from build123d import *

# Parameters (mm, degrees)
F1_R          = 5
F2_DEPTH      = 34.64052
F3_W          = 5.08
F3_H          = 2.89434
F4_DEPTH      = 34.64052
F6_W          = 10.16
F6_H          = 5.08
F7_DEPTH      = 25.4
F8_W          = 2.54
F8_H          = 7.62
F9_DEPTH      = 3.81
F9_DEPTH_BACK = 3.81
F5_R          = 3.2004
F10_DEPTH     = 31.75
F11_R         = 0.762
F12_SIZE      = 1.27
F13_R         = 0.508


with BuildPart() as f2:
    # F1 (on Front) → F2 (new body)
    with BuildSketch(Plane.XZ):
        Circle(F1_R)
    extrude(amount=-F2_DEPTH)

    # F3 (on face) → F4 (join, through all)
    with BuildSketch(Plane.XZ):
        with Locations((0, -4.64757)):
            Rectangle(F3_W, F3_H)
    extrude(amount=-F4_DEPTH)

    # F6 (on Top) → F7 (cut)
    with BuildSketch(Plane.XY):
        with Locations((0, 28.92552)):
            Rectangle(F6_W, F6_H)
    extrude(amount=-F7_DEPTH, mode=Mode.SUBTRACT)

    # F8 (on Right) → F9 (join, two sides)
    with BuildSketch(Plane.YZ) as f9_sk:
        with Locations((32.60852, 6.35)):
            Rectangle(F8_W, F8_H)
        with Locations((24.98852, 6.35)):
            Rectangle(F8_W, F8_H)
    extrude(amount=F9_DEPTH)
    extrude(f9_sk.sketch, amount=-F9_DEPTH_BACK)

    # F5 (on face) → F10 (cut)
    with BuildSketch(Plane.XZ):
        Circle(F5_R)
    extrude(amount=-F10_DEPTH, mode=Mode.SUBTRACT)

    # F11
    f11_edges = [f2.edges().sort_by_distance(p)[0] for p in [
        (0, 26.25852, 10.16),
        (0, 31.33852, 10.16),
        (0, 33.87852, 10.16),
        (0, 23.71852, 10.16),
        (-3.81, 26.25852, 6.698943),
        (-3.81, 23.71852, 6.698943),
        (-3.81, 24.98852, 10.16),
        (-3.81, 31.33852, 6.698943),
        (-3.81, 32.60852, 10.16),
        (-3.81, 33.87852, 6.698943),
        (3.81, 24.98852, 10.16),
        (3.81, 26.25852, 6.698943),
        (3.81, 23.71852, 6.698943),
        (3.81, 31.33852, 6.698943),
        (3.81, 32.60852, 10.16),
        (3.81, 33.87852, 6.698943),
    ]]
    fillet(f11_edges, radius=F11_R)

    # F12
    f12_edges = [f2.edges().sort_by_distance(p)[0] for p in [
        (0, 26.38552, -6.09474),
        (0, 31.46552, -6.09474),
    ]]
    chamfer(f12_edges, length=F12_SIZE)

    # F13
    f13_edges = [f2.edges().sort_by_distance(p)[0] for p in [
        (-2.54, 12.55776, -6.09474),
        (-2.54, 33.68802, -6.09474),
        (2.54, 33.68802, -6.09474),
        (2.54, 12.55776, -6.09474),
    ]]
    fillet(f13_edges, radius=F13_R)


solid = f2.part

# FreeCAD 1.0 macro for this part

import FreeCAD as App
import Part
import Sketcher

V = App.Vector
Q = App.Units.Quantity


def edges_at(feature, points):
    """Names of the edges that pass closest to the given points."""
    edges = feature.Shape.Edges
    near = lambda p: min(range(len(edges)), key=lambda i: edges[i].distToShape(Part.Vertex(*p))[0])
    return sorted({f"Edge{near(p) + 1}" for p in points})

doc = App.newDocument("Part")
body = doc.addObject("PartDesign::Body", "Body")

# Sketch on XZ plane
sketch1 = doc.addObject("Sketcher::SketchObject", "Sketch")
body.addObject(sketch1)
sketch1.AttachmentSupport = (doc.XZ_Plane, [""])
sketch1.MapMode = "FlatFace"
sketch1.addGeometry(Part.Circle(V(0, 0, 0), V(0, 0, 1), 5), False)
sketch1.addConstraint(Sketcher.Constraint("Coincident", 0, 3, -1, 1))
sketch1.addConstraint(Sketcher.Constraint("Diameter", 0, Q("10 mm")))
pad1 = doc.addObject("PartDesign::Pad", "Pad")
body.addObject(pad1)
pad1.Profile = sketch1
pad1.Length = Q("1.3638 in")
pad1.Reversed = True

# Sketch on XZ plane
sketch2 = doc.addObject("Sketcher::SketchObject", "Sketch001")
body.addObject(sketch2)
sketch2.AttachmentSupport = (doc.XZ_Plane, [""])
sketch2.MapMode = "FlatFace"
sketch2.addGeometry(Part.LineSegment(V(-2.5, -3.2, 0), V(-2.5, -6.1, 0)), False)
sketch2.addGeometry(Part.LineSegment(V(-2.5, -6.1, 0), V(2.5, -6.1, 0)), False)
sketch2.addGeometry(Part.LineSegment(V(2.5, -6.1, 0), V(2.5, -3.2, 0)), False)
sketch2.addGeometry(Part.LineSegment(V(2.5, -3.2, 0), V(-2.5, -3.2, 0)), False)
sketch2.addConstraint(Sketcher.Constraint("Coincident", 0, 2, 1, 1))
sketch2.addConstraint(Sketcher.Constraint("Coincident", 1, 2, 2, 1))
sketch2.addConstraint(Sketcher.Constraint("Coincident", 2, 2, 3, 1))
sketch2.addConstraint(Sketcher.Constraint("Coincident", 3, 2, 0, 1))
sketch2.addConstraint(Sketcher.Constraint("Vertical", 0))
sketch2.addConstraint(Sketcher.Constraint("Horizontal", 1))
sketch2.addConstraint(Sketcher.Constraint("Vertical", 2))
sketch2.addConstraint(Sketcher.Constraint("Horizontal", 3))
sketch2.addConstraint(Sketcher.Constraint("DistanceX", 1, 1, 1, 2, Q("0.2 in")))
sketch2.addConstraint(Sketcher.Constraint("DistanceX", 0, 2, -1, 1, Q("0.1 in")))
sketch2.addConstraint(Sketcher.Constraint("DistanceY", 2, 2, -1, 1, Q("0.126 in")))
sketch2.addConstraint(Sketcher.Constraint("DistanceY", 0, 2, 0, 1, Q("2.89434 mm")))
pad2 = doc.addObject("PartDesign::Pad", "Pad001")
body.addObject(pad2)
pad2.Profile = sketch2
pad2.Type = "UpToLast"
pad2.Reversed = True

# Sketch on XY plane
sketch3 = doc.addObject("Sketcher::SketchObject", "Sketch002")
body.addObject(sketch3)
sketch3.AttachmentSupport = (doc.XY_Plane, [""])
sketch3.MapMode = "FlatFace"
sketch3.addGeometry(Part.LineSegment(V(-5, 31, 0), V(-5, 26, 0)), False)
sketch3.addGeometry(Part.LineSegment(V(-5, 26, 0), V(5, 26, 0)), False)
sketch3.addGeometry(Part.LineSegment(V(5, 26, 0), V(5, 31, 0)), False)
sketch3.addGeometry(Part.LineSegment(V(5, 31, 0), V(-5, 31, 0)), False)
sketch3.addConstraint(Sketcher.Constraint("Coincident", 0, 2, 1, 1))
sketch3.addConstraint(Sketcher.Constraint("Coincident", 1, 2, 2, 1))
sketch3.addConstraint(Sketcher.Constraint("Coincident", 2, 2, 3, 1))
sketch3.addConstraint(Sketcher.Constraint("Coincident", 3, 2, 0, 1))
sketch3.addConstraint(Sketcher.Constraint("Vertical", 0))
sketch3.addConstraint(Sketcher.Constraint("Horizontal", 1))
sketch3.addConstraint(Sketcher.Constraint("Vertical", 2))
sketch3.addConstraint(Sketcher.Constraint("Horizontal", 3))
sketch3.addConstraint(Sketcher.Constraint("DistanceX", 1, 1, 1, 2, Q("0.4 in")))
sketch3.addConstraint(Sketcher.Constraint("DistanceY", 0, 2, 0, 1, Q("0.2 in")))
sketch3.addConstraint(Sketcher.Constraint("DistanceX", 0, 2, -1, 1, Q("0.2 in")))
sketch3.addConstraint(Sketcher.Constraint("DistanceY", -1, 1, 0, 2, Q("1.0388 in")))
pocket1 = doc.addObject("PartDesign::Pocket", "Pocket")
body.addObject(pocket1)
pocket1.Profile = sketch3
pocket1.Length = Q("1 in")

# Sketch on YZ plane
sketch4 = doc.addObject("Sketcher::SketchObject", "Sketch003")
body.addObject(sketch4)
sketch4.AttachmentSupport = (doc.YZ_Plane, [""])
sketch4.MapMode = "FlatFace"
sketch4.addGeometry(Part.LineSegment(V(31.3, 10.2, 0), V(31.3, 2.5, 0)), False)
sketch4.addGeometry(Part.LineSegment(V(31.3, 2.5, 0), V(33.9, 2.5, 0)), False)
sketch4.addGeometry(Part.LineSegment(V(33.9, 2.5, 0), V(33.9, 10.2, 0)), False)
sketch4.addGeometry(Part.LineSegment(V(33.9, 10.2, 0), V(31.3, 10.2, 0)), False)
sketch4.addGeometry(Part.LineSegment(V(23.7, 10.2, 0), V(23.7, 2.5, 0)), False)
sketch4.addGeometry(Part.LineSegment(V(23.7, 2.5, 0), V(26.3, 2.5, 0)), False)
sketch4.addGeometry(Part.LineSegment(V(26.3, 2.5, 0), V(26.3, 10.2, 0)), False)
sketch4.addGeometry(Part.LineSegment(V(26.3, 10.2, 0), V(23.7, 10.2, 0)), False)
sketch4.addConstraint(Sketcher.Constraint("Coincident", 0, 2, 1, 1))
sketch4.addConstraint(Sketcher.Constraint("Coincident", 1, 2, 2, 1))
sketch4.addConstraint(Sketcher.Constraint("Coincident", 2, 2, 3, 1))
sketch4.addConstraint(Sketcher.Constraint("Coincident", 3, 2, 0, 1))
sketch4.addConstraint(Sketcher.Constraint("Coincident", 4, 2, 5, 1))
sketch4.addConstraint(Sketcher.Constraint("Coincident", 5, 2, 6, 1))
sketch4.addConstraint(Sketcher.Constraint("Coincident", 6, 2, 7, 1))
sketch4.addConstraint(Sketcher.Constraint("Coincident", 7, 2, 4, 1))
sketch4.addConstraint(Sketcher.Constraint("Vertical", 0))
sketch4.addConstraint(Sketcher.Constraint("Horizontal", 1))
sketch4.addConstraint(Sketcher.Constraint("Vertical", 2))
sketch4.addConstraint(Sketcher.Constraint("Horizontal", 3))
sketch4.addConstraint(Sketcher.Constraint("Vertical", 4))
sketch4.addConstraint(Sketcher.Constraint("Horizontal", 5))
sketch4.addConstraint(Sketcher.Constraint("Vertical", 6))
sketch4.addConstraint(Sketcher.Constraint("Horizontal", 7))
sketch4.addConstraint(Sketcher.Constraint("Horizontal", 1, 2, 4, 2))
sketch4.addConstraint(Sketcher.Constraint("Horizontal", 3, 2, 6, 2))
sketch4.addConstraint(Sketcher.Constraint("Equal", 3, 5))
sketch4.addConstraint(Sketcher.Constraint("DistanceX", 1, 1, 1, 2, Q("0.1 in")))
sketch4.addConstraint(Sketcher.Constraint("DistanceY", 0, 2, 0, 1, Q("0.3 in")))
sketch4.addConstraint(Sketcher.Constraint("DistanceY", -1, 1, 0, 2, Q("0.1 in")))
sketch4.addConstraint(Sketcher.Constraint("DistanceX", 4, 2, 0, 2, Q("0.3 in")))
sketch4.addConstraint(Sketcher.Constraint("DistanceX", -1, 1, 0, 2, Q("1.2338 in")))
pad3 = doc.addObject("PartDesign::Pad", "Pad002")
body.addObject(pad3)
pad3.Profile = sketch4
pad3.Type = "TwoLengths"
pad3.Length = Q("0.15 in")
pad3.Length2 = Q("0.15 in")

# Sketch on XZ plane
sketch5 = doc.addObject("Sketcher::SketchObject", "Sketch004")
body.addObject(sketch5)
sketch5.AttachmentSupport = (doc.XZ_Plane, [""])
sketch5.MapMode = "FlatFace"
sketch5.addGeometry(Part.Circle(V(0, 0, 0), V(0, 0, 1), 3.2), False)
sketch5.addConstraint(Sketcher.Constraint("Coincident", 0, 3, -1, 1))
sketch5.addConstraint(Sketcher.Constraint("Diameter", 0, Q("0.252 in")))
pocket2 = doc.addObject("PartDesign::Pocket", "Pocket001")
body.addObject(pocket2)
pocket2.Profile = sketch5
pocket2.Length = Q("1.25 in")
doc.recompute()

fillet = doc.addObject("PartDesign::Fillet", "Fillet")
body.addObject(fillet)
fillet.Base = (pocket2, edges_at(pocket2, [
    (0, 26.259, 10.16),
    (0, 31.339, 10.16),
    (0, 33.879, 10.16),
    (0, 23.719, 10.16),
    (-3.81, 26.259, 6.699),
    (-3.81, 23.719, 6.699),
    (-3.81, 24.989, 10.16),
    (-3.81, 31.339, 6.699),
    (-3.81, 32.609, 10.16),
    (-3.81, 33.879, 6.699),
    (3.81, 24.989, 10.16),
    (3.81, 26.259, 6.699),
    (3.81, 23.719, 6.699),
    (3.81, 31.339, 6.699),
    (3.81, 32.609, 10.16),
    (3.81, 33.879, 6.699),
]))
fillet.Radius = Q("0.03 in")
doc.recompute()

chamfer = doc.addObject("PartDesign::Chamfer", "Chamfer")
body.addObject(chamfer)
chamfer.Base = (fillet, edges_at(fillet, [(0, 26.386, -6.095), (0, 31.466, -6.095)]))
chamfer.Size = Q("0.05 in")
doc.recompute()

fillet2 = doc.addObject("PartDesign::Fillet", "Fillet001")
body.addObject(fillet2)
fillet2.Base = (chamfer, edges_at(chamfer, [
    (-2.54, 12.558, -6.095),
    (-2.54, 33.688, -6.095),
    (2.54, 33.688, -6.095),
    (2.54, 12.558, -6.095),
]))
fillet2.Radius = Q("0.02 in")

doc.recompute()
